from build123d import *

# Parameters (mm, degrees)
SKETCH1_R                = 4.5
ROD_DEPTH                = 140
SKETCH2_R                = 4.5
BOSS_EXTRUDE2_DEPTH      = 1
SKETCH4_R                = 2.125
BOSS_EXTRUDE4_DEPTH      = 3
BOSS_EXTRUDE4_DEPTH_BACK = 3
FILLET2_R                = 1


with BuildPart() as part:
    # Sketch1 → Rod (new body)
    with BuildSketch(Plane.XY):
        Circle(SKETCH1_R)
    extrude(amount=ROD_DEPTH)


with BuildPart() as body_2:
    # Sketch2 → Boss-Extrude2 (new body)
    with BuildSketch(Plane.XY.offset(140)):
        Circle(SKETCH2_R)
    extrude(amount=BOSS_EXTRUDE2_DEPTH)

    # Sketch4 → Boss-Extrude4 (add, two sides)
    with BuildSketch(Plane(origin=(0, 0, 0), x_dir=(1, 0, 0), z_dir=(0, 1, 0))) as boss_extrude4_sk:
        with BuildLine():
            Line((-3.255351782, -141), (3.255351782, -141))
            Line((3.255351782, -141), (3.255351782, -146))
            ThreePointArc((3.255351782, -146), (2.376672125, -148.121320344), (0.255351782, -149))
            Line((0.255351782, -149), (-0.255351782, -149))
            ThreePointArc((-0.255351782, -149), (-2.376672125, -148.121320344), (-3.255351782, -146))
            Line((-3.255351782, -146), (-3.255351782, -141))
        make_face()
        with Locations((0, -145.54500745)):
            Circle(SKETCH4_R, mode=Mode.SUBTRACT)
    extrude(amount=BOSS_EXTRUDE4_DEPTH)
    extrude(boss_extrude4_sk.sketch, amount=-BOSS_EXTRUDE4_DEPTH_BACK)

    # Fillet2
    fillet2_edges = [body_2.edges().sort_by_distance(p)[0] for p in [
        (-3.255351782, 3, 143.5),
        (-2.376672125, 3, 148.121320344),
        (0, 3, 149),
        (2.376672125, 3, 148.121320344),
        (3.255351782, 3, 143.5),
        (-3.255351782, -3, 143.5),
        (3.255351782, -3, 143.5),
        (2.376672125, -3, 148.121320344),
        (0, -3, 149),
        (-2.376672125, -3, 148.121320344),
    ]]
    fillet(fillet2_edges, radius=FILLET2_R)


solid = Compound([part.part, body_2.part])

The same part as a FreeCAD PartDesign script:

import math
import FreeCAD as App
import Part
import Sketcher

V = App.Vector
Q = App.Units.Quantity


def edges_at(feature, points):
    """Names of the edges that pass closest to the given points."""
    edges = feature.Shape.Edges
    near = lambda p: min(range(len(edges)), key=lambda i: edges[i].distToShape(Part.Vertex(*p))[0])
    return sorted({f"Edge{near(p) + 1}" for p in points})

doc = App.newDocument("Part")
body = doc.addObject("PartDesign::Body", "Body")

# Sketch on XY plane
sketch1 = body.newObject("Sketcher::SketchObject", "Sketch")
sketch1.AttachmentSupport = (doc.getObject("XY_Plane"), [""])
sketch1.MapMode = "FlatFace"
sketch1.addGeometry(Part.Circle(V(0, 0, 0), V(0, 0, 1), 4.5), False)
sketch1.addConstraint(Sketcher.Constraint("Coincident", 0, 3, -1, 1))
sketch1.addConstraint(Sketcher.Constraint("Diameter", 0, Q("9 mm")))
pad1 = body.newObject("PartDesign::Pad", "Pad")
pad1.Profile = sketch1
pad1.Length = 140
body2 = doc.addObject("PartDesign::Body", "Body001")

# Sketch on XY plane
sketch2 = body2.newObject("Sketcher::SketchObject", "Sketch001")
sketch2.AttachmentSupport = (doc.getObject("XY_Plane001"), [""])
sketch2.MapMode = "FlatFace"
sketch2.AttachmentOffset = App.Placement(V(0, 0, 140), App.Rotation())
sketch2.addGeometry(Part.Circle(V(0, 0, 0), V(0, 0, 1), 4.5), False)
sketch2.addConstraint(Sketcher.Constraint("Coincident", 0, 3, -1, 1))
sketch2.addConstraint(Sketcher.Constraint("Diameter", 0, Q("9 mm")))
pad2 = body2.newObject("PartDesign::Pad", "Pad001")
pad2.Profile = sketch2
pad2.Length = 1

# Sketch on XZ plane
sketch3 = body2.newObject("Sketcher::SketchObject", "Sketch002")
sketch3.AttachmentSupport = (doc.getObject("XZ_Plane001"), [""])
sketch3.MapMode = "FlatFace"
sketch3.addGeometry(Part.LineSegment(V(3.255352, 141, 0), V(-3.255352, 141, 0)), False)
sketch3.addGeometry(Part.LineSegment(V(-3.255352, 141, 0), V(-3.255352, 146, 0)), False)
sketch3.addGeometry(Part.ArcOfCircle(Part.Circle(V(-0.255352, 146, 0), V(0, 0, 1), 3), math.radians(90), math.radians(180)), False)
sketch3.addGeometry(Part.LineSegment(V(-0.255352, 149, 0), V(0.255352, 149, 0)), False)
sketch3.addGeometry(Part.ArcOfCircle(Part.Circle(V(0.255352, 146, 0), V(0, 0, 1), 3), math.radians(0), math.radians(90)), False)
sketch3.addGeometry(Part.LineSegment(V(3.255352, 146, 0), V(3.255352, 141, 0)), False)
sketch3.addGeometry(Part.Circle(V(0, 145.545007, 0), V(0, 0, 1), 2.125), False)
sketch3.addConstraint(Sketcher.Constraint("Coincident", 0, 2, 1, 1))
sketch3.addConstraint(Sketcher.Constraint("Tangent", 1, 2, 2, 2))
sketch3.addConstraint(Sketcher.Constraint("Tangent", 2, 1, 3, 1))
sketch3.addConstraint(Sketcher.Constraint("Tangent", 3, 2, 4, 2))
sketch3.addConstraint(Sketcher.Constraint("Tangent", 4, 1, 5, 1))
sketch3.addConstraint(Sketcher.Constraint("Coincident", 5, 2, 0, 1))
sketch3.addConstraint(Sketcher.Constraint("Horizontal", 0))
sketch3.addConstraint(Sketcher.Constraint("Vertical", 1))
sketch3.addConstraint(Sketcher.Constraint("Horizontal", 3))
sketch3.addConstraint(Sketcher.Constraint("Vertical", 5))
sketch3.addConstraint(Sketcher.Constraint("Equal", 2, 4))
sketch3.addConstraint(Sketcher.Constraint("PointOnObject", 6, 3, -2))
sketch3.addConstraint(Sketcher.Constraint("Radius", 2, Q("3 mm")))
sketch3.addConstraint(Sketcher.Constraint("Diameter", 6, Q("4.25 mm")))
sketch3.addConstraint(Sketcher.Constraint("DistanceY", 1, 1, 1, 2, Q("5 mm")))
sketch3.addConstraint(Sketcher.Constraint("DistanceY", -1, 1, 2, 3, Q("146 mm")))
sketch3.addConstraint(Sketcher.Constraint("DistanceX", 0, 2, 0, 1, Q("6.510704 mm")))
sketch3.addConstraint(Sketcher.Constraint("DistanceX", 2, 3, -1, 1, Q("0.255352 mm")))
sketch3.addConstraint(Sketcher.Constraint("DistanceY", -1, 1, 6, 3, Q("145.545007 mm")))
pad3 = body2.newObject("PartDesign::Pad", "Pad002")
pad3.Profile = sketch3
pad3.Type = "TwoLengths"
pad3.Length = 3
pad3.Length2 = 3
pad3.Reversed = True
doc.recompute()

fillet = body2.newObject("PartDesign::Fillet", "Fillet")
fillet.Base = (pad3, edges_at(pad3, [
    (-3.255, 3, 143.5),
    (-2.377, 3, 148.121),
    (0, 3, 149),
    (2.377, 3, 148.121),
    (3.255, 3, 143.5),
    (-3.255, -3, 143.5),
    (3.255, -3, 143.5),
    (2.377, -3, 148.121),
    (0, -3, 149),
    (-2.377, -3, 148.121),
]))
fillet.Radius = 1

doc.recompute()
